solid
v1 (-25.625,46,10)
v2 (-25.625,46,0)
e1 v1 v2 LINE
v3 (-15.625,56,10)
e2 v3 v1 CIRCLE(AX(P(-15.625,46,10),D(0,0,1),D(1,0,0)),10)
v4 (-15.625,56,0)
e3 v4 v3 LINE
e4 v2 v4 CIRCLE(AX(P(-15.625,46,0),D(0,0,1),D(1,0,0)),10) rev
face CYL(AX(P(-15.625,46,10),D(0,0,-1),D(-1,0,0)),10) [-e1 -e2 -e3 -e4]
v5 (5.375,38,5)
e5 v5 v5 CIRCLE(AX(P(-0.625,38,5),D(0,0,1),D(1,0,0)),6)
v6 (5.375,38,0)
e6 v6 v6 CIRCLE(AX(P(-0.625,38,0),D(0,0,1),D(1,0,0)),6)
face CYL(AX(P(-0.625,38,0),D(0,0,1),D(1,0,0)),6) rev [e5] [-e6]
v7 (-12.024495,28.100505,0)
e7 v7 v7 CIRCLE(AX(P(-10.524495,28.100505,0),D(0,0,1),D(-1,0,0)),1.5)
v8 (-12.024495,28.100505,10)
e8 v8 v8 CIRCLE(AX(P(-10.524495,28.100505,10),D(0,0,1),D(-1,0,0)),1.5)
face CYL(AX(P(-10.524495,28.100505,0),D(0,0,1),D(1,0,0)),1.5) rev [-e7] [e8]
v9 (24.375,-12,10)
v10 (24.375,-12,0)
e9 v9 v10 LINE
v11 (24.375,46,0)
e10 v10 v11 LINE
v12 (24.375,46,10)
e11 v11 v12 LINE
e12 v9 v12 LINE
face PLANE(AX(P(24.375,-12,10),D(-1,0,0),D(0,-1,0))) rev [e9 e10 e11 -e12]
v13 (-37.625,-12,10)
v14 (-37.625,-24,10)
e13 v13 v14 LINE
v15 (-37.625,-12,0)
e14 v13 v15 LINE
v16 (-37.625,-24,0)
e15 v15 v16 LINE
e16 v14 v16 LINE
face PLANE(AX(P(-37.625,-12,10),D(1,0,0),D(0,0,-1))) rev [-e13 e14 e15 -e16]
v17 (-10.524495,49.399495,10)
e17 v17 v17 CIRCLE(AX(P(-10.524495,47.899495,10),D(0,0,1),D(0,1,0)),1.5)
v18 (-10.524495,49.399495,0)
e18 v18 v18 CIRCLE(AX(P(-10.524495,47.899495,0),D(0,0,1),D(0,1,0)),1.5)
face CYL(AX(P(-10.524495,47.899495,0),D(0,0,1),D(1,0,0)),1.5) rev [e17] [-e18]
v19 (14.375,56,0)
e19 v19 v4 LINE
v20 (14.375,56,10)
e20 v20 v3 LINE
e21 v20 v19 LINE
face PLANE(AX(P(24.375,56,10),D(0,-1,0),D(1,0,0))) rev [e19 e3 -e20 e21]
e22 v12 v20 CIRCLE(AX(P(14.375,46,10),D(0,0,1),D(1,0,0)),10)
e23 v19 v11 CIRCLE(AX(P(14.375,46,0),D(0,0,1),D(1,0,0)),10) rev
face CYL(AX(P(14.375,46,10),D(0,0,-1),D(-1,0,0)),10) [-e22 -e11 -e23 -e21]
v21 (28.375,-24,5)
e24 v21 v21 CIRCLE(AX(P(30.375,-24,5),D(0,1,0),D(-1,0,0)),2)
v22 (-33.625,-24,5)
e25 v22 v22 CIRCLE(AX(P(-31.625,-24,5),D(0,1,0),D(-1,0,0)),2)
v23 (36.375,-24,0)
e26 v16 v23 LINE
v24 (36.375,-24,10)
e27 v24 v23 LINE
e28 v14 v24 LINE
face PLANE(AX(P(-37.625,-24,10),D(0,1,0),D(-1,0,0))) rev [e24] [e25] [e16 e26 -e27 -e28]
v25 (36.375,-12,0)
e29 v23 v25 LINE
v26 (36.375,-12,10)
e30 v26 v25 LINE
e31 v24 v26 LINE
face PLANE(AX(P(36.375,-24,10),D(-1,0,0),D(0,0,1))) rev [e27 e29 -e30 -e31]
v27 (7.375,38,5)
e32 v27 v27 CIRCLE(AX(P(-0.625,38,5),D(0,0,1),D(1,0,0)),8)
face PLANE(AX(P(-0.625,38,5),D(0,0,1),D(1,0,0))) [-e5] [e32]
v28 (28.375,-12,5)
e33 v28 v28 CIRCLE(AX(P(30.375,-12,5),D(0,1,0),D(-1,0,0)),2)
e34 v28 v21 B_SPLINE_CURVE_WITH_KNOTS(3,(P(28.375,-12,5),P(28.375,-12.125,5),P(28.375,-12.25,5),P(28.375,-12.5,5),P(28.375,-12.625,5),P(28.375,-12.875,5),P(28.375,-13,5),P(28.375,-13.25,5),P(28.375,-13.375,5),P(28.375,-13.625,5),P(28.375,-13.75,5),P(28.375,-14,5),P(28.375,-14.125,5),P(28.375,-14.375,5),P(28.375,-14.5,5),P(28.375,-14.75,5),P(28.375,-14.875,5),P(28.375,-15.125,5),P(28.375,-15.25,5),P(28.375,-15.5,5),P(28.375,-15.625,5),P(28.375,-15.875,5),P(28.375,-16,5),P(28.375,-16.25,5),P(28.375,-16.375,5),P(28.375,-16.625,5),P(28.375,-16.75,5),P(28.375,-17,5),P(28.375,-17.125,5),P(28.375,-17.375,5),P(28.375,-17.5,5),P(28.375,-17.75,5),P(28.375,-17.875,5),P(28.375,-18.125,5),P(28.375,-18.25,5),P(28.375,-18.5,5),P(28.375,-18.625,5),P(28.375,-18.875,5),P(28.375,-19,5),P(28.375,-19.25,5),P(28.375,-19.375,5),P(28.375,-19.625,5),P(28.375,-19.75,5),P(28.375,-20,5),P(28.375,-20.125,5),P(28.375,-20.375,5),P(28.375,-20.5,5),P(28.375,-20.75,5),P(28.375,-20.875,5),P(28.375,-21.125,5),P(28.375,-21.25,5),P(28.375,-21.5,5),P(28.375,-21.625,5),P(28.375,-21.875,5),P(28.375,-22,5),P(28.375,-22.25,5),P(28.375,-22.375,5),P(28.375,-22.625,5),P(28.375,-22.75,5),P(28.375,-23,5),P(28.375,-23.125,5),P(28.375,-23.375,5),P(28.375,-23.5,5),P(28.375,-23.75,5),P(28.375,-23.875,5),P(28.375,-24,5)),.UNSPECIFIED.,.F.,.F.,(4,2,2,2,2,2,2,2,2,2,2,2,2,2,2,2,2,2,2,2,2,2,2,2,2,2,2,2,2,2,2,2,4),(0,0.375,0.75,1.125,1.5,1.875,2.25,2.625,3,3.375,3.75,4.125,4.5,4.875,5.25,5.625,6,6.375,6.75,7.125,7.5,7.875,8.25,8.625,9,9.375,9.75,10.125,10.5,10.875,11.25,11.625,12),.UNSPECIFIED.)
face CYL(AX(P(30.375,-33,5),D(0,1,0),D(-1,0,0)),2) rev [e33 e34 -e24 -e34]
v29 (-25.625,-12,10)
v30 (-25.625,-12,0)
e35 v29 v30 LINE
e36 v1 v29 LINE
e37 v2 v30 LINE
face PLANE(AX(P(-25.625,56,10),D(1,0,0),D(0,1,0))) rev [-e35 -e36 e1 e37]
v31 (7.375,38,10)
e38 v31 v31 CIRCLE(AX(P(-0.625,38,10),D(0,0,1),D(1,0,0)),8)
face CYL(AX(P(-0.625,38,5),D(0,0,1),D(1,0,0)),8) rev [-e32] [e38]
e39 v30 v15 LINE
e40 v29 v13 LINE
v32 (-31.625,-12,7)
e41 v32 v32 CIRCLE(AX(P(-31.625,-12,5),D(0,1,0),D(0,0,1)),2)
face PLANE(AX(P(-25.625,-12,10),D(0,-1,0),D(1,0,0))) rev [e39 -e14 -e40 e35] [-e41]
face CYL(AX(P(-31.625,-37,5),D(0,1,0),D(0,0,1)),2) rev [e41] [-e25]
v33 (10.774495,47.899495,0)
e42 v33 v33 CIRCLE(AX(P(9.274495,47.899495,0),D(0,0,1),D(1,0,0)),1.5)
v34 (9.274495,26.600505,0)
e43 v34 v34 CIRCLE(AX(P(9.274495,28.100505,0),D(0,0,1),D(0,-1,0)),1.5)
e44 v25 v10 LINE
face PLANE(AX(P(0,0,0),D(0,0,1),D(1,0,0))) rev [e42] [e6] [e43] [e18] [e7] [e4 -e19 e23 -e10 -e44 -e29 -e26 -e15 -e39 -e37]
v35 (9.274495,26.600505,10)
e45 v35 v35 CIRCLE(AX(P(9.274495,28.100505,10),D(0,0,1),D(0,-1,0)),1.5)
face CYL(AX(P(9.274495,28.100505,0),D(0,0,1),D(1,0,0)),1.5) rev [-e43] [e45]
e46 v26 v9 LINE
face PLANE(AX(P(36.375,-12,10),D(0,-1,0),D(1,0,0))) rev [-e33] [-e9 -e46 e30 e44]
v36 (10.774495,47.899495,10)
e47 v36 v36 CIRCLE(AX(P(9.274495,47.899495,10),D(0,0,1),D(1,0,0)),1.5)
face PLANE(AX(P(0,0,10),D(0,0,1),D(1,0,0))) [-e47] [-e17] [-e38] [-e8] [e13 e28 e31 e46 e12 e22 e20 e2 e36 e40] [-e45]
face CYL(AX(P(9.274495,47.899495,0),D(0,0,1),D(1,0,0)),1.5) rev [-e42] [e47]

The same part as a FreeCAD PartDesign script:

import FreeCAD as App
import Part
import Sketcher
from FreeCAD import Vector


def edges_at(feature, points):
    """Names of the edges that pass closest to the given points."""
    edges = feature.Shape.Edges
    near = lambda p: min(range(len(edges)), key=lambda i: edges[i].distToShape(Part.Vertex(*p))[0])
    return sorted({f"Edge{near(p) + 1}" for p in points})


def add_polygon(sketch, points):
    """Adds a closed chain of lines whose ends are joined by coincident constraints."""
    first, n = sketch.GeometryCount, len(points)
    for a, b in zip(points, points[1:] + points[:1]):
        sketch.addGeometry(Part.LineSegment(App.Vector(*a, 0), App.Vector(*b, 0)), False)
    for i in range(n):
        sketch.addConstraint(Sketcher.Constraint("Coincident", first + i, 2, first + (i + 1) % n, 1))

doc = App.newDocument("Part")
params = doc.addObject("Spreadsheet::Sheet", "Params")
for row, (alias, value) in enumerate([
    ("sketch1_width", "74 mm"),
    ("sketch1_width2", "12 mm"),
    ("sketch1_height", "68 mm"),
    ("pad1_length", "10 mm"),
    ("sketch2_diameter", "16 mm"),
    ("pocket1_length", "5 mm"),
    ("fillet_radius", "10 mm"),
    ("sketch3_diameter", "4 mm"),
    ("pocket2_length", "21 mm"),
    ("sketch4_diameter", "4 mm"),
    ("pocket3_length", "25 mm"),
    ("sketch5_diameter", "3 mm"),
    ("pocket4_length", "10 mm"),
    ("sketch6_diameter", "12 mm"),
    ("pocket5_length", "10 mm"),
], start=1):
    params.set(f"A{row}", alias)
    params.set(f"B{row}", "=" + value)
    params.setAlias(f"B{row}", alias)

body = doc.addObject("PartDesign::Body", "Body")

# Sketch on XY plane
sketch1 = body.newObject("Sketcher::SketchObject", "Sketch")
sketch1.AttachmentSupport = (doc.getObject("XY_Plane"), [""])
sketch1.MapMode = "FlatFace"
add_polygon(sketch1, [(-37.625, -24), (36.375, -24), (36.375, -12), (24.375, -12), (24.375, 56), (-25.625, 56), (-25.625, -12), (-37.625, -12)])  # lines 0-7
sketch1.addConstraint([
    Sketcher.Constraint("Horizontal", 0),
    Sketcher.Constraint("Vertical", 1),
    Sketcher.Constraint("Horizontal", 2),
    Sketcher.Constraint("Vertical", 3),
    Sketcher.Constraint("Horizontal", 4),
    Sketcher.Constraint("Vertical", 5),
    Sketcher.Constraint("Horizontal", 6),
    Sketcher.Constraint("Vertical", 7),
    Sketcher.Constraint("Horizontal", 2, 2, 5, 2),
    Sketcher.Constraint("Equal", 2, 6),
    Sketcher.Constraint("Equal", 6, 1),
    Sketcher.Constraint("DistanceX", 0, 1, 0, 2, 74.0),
    Sketcher.Constraint("DistanceX", 2, 2, 2, 1, 12.0),
    Sketcher.Constraint("DistanceY", 3, 1, 3, 2, 68.0),
    Sketcher.Constraint("DistanceY", 0, 2, -1, 1, 24.0),
    Sketcher.Constraint("DistanceX", -1, 1, 0, 2, 36.375),
])
sketch1.setExpression("Constraints[19]", "Params.sketch1_width")
sketch1.setExpression("Constraints[20]", "Params.sketch1_width2")
sketch1.setExpression("Constraints[21]", "Params.sketch1_height")
pad1 = body.newObject("PartDesign::Pad", "Pad")
pad1.Profile = sketch1
pad1.setExpression("Length", "Params.pad1_length")

# Sketch on XY plane
sketch2 = body.newObject("Sketcher::SketchObject", "Sketch001")
sketch2.AttachmentSupport = (doc.getObject("XY_Plane"), [""])
sketch2.MapMode = "FlatFace"
sketch2.AttachmentOffset = App.Placement(Vector(0, 0, 10), App.Rotation())
sketch2.addGeometry(Part.Circle(Vector(-0.625, 38, 0), Vector(0, 0, 1), 8), False)
sketch2.addConstraint([
    Sketcher.Constraint("Diameter", 0, 16.0),
    Sketcher.Constraint("DistanceY", -1, 1, 0, 3, 38.0),
    Sketcher.Constraint("DistanceX", 0, 3, -1, 1, 0.625),
])
sketch2.setExpression("Constraints[0]", "Params.sketch2_diameter")
pocket1 = body.newObject("PartDesign::Pocket", "Pocket")
pocket1.Profile = sketch2
pocket1.setExpression("Length", "Params.pocket1_length")
doc.recompute()

fillet = body.newObject("PartDesign::Fillet", "Fillet")
fillet.Base = (pocket1, edges_at(pocket1, [(24.375, 56, 5), (-25.625, 56, 5)]))
fillet.setExpression("Radius", "Params.fillet_radius")

# Sketch on XZ plane
sketch3 = body.newObject("Sketcher::SketchObject", "Sketch002")
sketch3.AttachmentSupport = (doc.getObject("XZ_Plane"), [""])
sketch3.MapMode = "FlatFace"
sketch3.AttachmentOffset = App.Placement(Vector(0, 0, 12), App.Rotation())
sketch3.addGeometry(Part.Circle(Vector(30.375, 5, 0), Vector(0, 0, 1), 2), False)
sketch3.addConstraint([
    Sketcher.Constraint("Diameter", 0, 4.0),
    Sketcher.Constraint("DistanceY", -1, 1, 0, 3, 5.0),
    Sketcher.Constraint("DistanceX", -1, 1, 0, 3, 30.375),
])
sketch3.setExpression("Constraints[0]", "Params.sketch3_diameter")
pocket2 = body.newObject("PartDesign::Pocket", "Pocket001")
pocket2.Profile = sketch3
pocket2.setExpression("Length", "Params.pocket2_length")
pocket2.Reversed = True

# Sketch on XZ plane
sketch4 = body.newObject("Sketcher::SketchObject", "Sketch003")
sketch4.AttachmentSupport = (doc.getObject("XZ_Plane"), [""])
sketch4.MapMode = "FlatFace"
sketch4.AttachmentOffset = App.Placement(Vector(0, 0, 12), App.Rotation())
sketch4.addGeometry(Part.Circle(Vector(-31.625, 5, 0), Vector(0, 0, 1), 2), False)
sketch4.addConstraint([
    Sketcher.Constraint("Diameter", 0, 4.0),
    Sketcher.Constraint("DistanceY", -1, 1, 0, 3, 5.0),
    Sketcher.Constraint("DistanceX", 0, 3, -1, 1, 31.625),
])
sketch4.setExpression("Constraints[0]", "Params.sketch4_diameter")
pocket3 = body.newObject("PartDesign::Pocket", "Pocket002")
pocket3.Profile = sketch4
pocket3.setExpression("Length", "Params.pocket3_length")
pocket3.Reversed = True

# Sketch on XY plane
sketch5 = body.newObject("Sketcher::SketchObject", "Sketch004")
sketch5.AttachmentSupport = (doc.getObject("XY_Plane"), [""])
sketch5.MapMode = "FlatFace"
sketch5.AttachmentOffset = App.Placement(Vector(0, 0, 10), App.Rotation())
sketch5.addGeometry(Part.Circle(Vector(9.274495, 47.899495, 0), Vector(0, 0, 1), 1.5), False)
sketch5.addConstraint([
    Sketcher.Constraint("Diameter", 0, 3.0),
    Sketcher.Constraint("DistanceX", -1, 1, 0, 3, 9.274495),
    Sketcher.Constraint("DistanceY", -1, 1, 0, 3, 47.899495),
])
sketch5.setExpression("Constraints[0]", "Params.sketch5_diameter")
pocket4 = body.newObject("PartDesign::Pocket", "Pocket003")
pocket4.Profile = sketch5
pocket4.setExpression("Length", "Params.pocket4_length")
doc.recompute()

datumline = body.newObject("PartDesign::Line", "DatumLine")
datumline.Placement = App.Placement(Vector(-0.625, 38, 0), App.Rotation(Vector(0, 0, 1), Vector(0, 0, 1)))
polarpattern = body.newObject("PartDesign::PolarPattern", "PolarPattern")
polarpattern.Originals = [pocket4]
polarpattern.Axis = (datumline, [""])
polarpattern.Angle = 360
polarpattern.Occurrences = 4
body.Tip = polarpattern

# Sketch on XY plane
sketch6 = body.newObject("Sketcher::SketchObject", "Sketch005")
sketch6.AttachmentSupport = (doc.getObject("XY_Plane"), [""])
sketch6.MapMode = "FlatFace"
sketch6.AttachmentOffset = App.Placement(Vector(0, 0, 10), App.Rotation())
sketch6.addGeometry(Part.Circle(Vector(-0.625, 38, 0), Vector(0, 0, 1), 6), False)
sketch6.addConstraint([
    Sketcher.Constraint("Diameter", 0, 12.0),
    Sketcher.Constraint("DistanceY", -1, 1, 0, 3, 38.0),
    Sketcher.Constraint("DistanceX", 0, 3, -1, 1, 0.625),
])
sketch6.setExpression("Constraints[0]", "Params.sketch6_diameter")
pocket5 = body.newObject("PartDesign::Pocket", "Pocket004")
pocket5.Profile = sketch6
pocket5.setExpression("Length", "Params.pocket5_length")

doc.recompute()
